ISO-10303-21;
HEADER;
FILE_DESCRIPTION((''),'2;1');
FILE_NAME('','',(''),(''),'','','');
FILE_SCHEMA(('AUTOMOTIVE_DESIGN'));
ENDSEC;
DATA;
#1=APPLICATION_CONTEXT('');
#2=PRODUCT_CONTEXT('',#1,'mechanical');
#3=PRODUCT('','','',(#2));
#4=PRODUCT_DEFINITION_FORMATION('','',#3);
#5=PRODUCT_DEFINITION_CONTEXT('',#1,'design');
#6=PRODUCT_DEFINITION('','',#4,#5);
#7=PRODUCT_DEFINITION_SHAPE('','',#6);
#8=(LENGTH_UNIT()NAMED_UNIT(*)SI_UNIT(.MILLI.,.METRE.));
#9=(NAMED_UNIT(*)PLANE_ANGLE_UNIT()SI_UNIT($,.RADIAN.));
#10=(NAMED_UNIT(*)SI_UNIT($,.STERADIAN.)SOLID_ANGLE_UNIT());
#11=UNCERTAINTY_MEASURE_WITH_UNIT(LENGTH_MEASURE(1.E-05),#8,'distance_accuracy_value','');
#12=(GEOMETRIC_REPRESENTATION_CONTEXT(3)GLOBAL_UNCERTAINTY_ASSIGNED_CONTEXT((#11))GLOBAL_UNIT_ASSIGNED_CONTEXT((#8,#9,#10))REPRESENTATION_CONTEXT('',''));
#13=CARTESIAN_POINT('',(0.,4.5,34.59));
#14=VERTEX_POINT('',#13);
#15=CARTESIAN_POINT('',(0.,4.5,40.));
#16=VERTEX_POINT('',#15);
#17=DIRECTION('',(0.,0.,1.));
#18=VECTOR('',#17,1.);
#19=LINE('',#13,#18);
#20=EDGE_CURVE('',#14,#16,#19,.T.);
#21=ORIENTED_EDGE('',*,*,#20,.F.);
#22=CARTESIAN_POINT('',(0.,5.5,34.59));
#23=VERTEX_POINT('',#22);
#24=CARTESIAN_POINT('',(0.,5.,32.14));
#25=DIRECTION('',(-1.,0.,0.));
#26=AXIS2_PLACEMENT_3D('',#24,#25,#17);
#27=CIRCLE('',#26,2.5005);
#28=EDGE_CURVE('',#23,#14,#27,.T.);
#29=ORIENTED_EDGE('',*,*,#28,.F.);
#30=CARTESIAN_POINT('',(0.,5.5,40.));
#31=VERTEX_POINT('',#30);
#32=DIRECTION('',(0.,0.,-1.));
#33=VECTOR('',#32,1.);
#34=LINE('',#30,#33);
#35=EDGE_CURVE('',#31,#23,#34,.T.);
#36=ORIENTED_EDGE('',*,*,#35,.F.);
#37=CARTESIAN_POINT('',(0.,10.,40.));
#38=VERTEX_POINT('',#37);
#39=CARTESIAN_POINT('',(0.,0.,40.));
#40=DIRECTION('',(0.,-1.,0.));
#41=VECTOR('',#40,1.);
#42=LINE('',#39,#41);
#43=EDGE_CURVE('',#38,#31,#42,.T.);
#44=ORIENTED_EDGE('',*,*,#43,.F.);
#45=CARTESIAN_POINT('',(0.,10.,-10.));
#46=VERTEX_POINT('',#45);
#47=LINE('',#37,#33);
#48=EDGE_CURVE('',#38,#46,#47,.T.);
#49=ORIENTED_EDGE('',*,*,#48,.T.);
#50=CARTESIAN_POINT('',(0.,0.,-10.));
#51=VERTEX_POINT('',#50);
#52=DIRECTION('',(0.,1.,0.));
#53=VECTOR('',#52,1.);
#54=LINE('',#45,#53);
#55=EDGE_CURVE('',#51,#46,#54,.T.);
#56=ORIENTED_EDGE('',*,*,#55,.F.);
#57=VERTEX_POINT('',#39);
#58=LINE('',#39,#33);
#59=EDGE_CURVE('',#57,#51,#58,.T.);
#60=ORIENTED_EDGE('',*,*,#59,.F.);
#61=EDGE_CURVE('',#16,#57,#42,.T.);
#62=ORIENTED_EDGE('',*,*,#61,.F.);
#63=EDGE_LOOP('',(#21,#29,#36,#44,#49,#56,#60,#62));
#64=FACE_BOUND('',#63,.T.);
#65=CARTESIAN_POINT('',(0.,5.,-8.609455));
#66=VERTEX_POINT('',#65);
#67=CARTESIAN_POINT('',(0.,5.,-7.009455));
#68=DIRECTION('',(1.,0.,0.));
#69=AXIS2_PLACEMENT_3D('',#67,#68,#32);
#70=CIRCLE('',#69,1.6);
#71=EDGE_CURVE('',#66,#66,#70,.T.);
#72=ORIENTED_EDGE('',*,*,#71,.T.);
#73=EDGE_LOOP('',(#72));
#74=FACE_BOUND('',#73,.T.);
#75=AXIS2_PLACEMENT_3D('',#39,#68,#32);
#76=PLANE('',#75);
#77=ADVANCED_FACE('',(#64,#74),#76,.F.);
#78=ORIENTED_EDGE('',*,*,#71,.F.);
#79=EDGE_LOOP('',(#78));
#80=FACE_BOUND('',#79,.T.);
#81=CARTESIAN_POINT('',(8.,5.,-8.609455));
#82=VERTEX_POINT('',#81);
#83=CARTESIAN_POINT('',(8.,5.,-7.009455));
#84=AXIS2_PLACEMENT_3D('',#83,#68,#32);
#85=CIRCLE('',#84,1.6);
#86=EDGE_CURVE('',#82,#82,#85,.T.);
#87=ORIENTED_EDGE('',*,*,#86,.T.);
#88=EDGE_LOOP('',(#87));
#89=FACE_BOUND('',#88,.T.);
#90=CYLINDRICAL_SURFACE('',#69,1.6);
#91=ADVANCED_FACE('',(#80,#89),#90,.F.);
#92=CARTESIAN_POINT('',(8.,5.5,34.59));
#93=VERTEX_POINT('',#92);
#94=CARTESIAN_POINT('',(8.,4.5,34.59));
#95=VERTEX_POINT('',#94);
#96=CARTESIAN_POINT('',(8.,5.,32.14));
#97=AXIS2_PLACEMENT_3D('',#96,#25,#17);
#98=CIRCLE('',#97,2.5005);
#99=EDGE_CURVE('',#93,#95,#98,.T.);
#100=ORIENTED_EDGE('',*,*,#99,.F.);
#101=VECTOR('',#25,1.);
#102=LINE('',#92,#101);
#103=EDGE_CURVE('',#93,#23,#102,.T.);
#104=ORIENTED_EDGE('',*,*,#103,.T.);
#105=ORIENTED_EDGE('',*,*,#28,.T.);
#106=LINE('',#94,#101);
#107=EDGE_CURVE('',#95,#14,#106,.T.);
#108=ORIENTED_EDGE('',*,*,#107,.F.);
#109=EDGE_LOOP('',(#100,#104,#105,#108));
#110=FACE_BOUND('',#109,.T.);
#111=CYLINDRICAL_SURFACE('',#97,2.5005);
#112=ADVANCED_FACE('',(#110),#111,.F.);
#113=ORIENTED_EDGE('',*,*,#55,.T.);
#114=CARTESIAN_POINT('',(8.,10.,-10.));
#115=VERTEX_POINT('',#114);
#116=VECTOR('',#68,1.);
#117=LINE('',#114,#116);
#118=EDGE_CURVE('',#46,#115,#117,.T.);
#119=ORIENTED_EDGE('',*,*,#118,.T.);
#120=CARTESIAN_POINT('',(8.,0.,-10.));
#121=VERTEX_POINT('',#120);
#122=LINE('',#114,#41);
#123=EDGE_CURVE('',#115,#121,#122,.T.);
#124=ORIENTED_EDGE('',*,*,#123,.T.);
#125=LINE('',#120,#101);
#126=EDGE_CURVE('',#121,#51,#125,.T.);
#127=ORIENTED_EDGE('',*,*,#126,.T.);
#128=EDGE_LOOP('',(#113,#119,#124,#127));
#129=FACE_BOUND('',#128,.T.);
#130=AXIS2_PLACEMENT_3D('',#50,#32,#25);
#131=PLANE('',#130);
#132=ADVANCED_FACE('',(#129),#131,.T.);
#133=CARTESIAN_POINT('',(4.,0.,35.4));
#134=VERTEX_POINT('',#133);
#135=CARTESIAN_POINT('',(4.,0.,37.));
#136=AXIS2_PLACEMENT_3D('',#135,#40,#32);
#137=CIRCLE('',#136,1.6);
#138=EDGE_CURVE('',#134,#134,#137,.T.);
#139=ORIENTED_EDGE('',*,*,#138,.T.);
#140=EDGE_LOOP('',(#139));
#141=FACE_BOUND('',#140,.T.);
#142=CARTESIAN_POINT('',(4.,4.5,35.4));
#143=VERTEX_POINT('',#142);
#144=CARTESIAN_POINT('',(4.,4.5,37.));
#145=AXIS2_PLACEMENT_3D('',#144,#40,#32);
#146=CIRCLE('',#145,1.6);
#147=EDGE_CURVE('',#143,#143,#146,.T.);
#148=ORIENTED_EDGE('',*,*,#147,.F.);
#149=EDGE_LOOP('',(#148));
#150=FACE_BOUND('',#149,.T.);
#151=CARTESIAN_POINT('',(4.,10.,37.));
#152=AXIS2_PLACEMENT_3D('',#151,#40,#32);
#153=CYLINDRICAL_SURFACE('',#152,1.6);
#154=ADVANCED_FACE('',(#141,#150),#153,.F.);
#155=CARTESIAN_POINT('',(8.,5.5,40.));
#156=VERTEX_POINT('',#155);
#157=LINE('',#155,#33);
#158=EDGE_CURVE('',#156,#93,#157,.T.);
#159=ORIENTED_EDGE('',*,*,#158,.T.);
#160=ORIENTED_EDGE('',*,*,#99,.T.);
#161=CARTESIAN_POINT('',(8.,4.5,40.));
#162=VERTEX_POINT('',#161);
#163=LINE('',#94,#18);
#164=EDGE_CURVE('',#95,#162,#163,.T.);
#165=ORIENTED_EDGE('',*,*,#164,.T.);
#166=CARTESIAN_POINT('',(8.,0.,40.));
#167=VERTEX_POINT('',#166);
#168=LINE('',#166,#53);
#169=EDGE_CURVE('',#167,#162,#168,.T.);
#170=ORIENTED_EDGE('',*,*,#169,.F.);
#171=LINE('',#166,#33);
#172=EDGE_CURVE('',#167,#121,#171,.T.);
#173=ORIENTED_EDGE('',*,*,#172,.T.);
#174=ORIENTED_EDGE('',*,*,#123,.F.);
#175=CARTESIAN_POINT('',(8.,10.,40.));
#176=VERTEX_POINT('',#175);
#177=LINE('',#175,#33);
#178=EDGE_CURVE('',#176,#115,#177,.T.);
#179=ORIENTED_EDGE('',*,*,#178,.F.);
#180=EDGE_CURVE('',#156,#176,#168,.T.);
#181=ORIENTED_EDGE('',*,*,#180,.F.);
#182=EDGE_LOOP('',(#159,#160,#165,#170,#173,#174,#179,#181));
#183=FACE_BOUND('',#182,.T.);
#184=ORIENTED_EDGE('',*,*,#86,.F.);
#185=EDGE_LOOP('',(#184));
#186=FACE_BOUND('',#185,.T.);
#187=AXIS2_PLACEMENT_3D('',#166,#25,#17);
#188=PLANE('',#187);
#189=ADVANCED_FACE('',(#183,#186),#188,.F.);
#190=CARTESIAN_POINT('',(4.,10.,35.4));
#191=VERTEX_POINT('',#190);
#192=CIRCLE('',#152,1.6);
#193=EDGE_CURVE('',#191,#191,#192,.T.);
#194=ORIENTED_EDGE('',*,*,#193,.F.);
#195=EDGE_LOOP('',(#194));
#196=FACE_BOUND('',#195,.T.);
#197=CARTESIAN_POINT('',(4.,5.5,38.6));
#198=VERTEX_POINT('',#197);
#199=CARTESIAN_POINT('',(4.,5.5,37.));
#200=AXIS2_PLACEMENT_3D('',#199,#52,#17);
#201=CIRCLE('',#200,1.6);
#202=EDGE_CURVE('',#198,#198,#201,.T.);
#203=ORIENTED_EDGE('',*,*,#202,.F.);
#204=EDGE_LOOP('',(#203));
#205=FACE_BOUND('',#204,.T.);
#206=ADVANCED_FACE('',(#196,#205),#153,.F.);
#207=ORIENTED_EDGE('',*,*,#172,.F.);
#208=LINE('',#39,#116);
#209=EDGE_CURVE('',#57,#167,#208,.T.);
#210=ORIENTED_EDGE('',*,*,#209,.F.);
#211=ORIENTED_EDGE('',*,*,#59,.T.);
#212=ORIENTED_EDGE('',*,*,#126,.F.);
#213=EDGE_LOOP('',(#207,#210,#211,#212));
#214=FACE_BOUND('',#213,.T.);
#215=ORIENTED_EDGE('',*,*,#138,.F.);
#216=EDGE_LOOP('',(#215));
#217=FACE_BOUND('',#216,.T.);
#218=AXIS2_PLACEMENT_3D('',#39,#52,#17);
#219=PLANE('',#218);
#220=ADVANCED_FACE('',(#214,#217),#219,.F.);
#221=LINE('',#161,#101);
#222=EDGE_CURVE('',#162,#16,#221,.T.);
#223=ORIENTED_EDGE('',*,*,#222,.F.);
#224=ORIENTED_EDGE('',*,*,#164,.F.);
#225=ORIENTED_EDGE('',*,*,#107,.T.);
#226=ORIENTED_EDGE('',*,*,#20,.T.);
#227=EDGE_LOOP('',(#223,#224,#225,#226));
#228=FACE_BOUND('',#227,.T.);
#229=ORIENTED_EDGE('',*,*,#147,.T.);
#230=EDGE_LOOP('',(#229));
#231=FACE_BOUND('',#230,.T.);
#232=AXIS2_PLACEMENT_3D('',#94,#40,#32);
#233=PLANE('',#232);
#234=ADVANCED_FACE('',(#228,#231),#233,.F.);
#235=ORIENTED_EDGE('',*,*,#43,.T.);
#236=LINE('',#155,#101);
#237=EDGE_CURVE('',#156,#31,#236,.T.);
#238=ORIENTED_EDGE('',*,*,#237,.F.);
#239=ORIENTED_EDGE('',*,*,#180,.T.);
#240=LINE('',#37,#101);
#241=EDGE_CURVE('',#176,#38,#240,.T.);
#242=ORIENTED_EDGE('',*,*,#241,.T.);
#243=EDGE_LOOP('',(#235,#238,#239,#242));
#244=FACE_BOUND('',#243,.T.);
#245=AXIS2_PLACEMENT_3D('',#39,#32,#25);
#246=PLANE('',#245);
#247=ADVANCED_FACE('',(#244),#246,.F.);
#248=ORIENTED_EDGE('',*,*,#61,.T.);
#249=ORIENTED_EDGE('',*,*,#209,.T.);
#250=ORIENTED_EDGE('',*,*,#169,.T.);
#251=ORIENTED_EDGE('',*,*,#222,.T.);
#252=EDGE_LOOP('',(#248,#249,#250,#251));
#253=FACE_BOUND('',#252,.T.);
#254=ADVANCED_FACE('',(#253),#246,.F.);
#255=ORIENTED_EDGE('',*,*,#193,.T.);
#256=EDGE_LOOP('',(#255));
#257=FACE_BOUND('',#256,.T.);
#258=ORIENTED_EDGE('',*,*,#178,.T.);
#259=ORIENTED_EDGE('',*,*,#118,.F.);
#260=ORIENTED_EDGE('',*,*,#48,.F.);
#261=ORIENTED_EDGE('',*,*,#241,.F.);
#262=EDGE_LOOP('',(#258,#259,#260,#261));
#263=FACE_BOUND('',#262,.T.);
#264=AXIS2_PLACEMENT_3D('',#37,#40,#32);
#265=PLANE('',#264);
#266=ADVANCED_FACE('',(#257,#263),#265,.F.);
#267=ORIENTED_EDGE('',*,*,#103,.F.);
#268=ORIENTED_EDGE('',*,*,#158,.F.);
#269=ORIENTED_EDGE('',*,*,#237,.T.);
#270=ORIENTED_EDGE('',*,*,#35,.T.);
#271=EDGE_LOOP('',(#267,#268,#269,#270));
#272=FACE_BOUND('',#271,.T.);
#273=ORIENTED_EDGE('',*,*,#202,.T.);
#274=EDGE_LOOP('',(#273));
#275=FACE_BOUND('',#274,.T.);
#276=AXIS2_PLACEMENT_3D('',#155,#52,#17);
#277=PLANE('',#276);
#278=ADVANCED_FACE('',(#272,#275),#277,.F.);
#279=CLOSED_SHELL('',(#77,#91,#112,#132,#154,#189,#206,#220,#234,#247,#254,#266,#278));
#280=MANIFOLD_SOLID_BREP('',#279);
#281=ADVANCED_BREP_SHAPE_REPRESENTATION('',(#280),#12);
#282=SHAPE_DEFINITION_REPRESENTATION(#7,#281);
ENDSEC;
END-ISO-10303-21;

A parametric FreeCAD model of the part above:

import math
import FreeCAD as App
import Part
import Sketcher
from FreeCAD import Vector


def add_polygon(sketch, points):
    """Adds a closed chain of lines whose ends are joined by coincident constraints."""
    first, n = sketch.GeometryCount, len(points)
    for a, b in zip(points, points[1:] + points[:1]):
        sketch.addGeometry(Part.LineSegment(App.Vector(*a, 0), App.Vector(*b, 0)), False)
    for i in range(n):
        sketch.addConstraint(Sketcher.Constraint("Coincident", first + i, 2, first + (i + 1) % n, 1))

doc = App.newDocument("Part")
params = doc.addObject("Spreadsheet::Sheet", "Params")
for row, (alias, value) in enumerate([
    ("sketch1_width", "8 mm"),
    ("sketch1_height", "10 mm"),
    ("pad1_length", "40 mm"),
    ("sketch2_width", "8 mm"),
    ("sketch2_height", "10 mm"),
    ("pad2_length", "10 mm"),
    ("sketch3_diameter", "3.2 mm"),
    ("sketch4_width", "1 mm"),
    ("sketch4_height", "5.41 mm"),
    ("sketch5_diameter", "3.2 mm"),
], start=1):
    params.set(f"A{row}", alias)
    params.set(f"B{row}", "=" + value)
    params.setAlias(f"B{row}", alias)

body = doc.addObject("PartDesign::Body", "Body")

# Sketch on XY plane
sketch1 = doc.addObject("Sketcher::SketchObject", "Sketch")
body.addObject(sketch1)
sketch1.AttachmentSupport = (doc.XY_Plane, [""])
sketch1.MapMode = "FlatFace"
add_polygon(sketch1, [(0, 10), (0, 0), (8, 0), (8, 10)])  # lines 0-3
sketch1.addConstraint(Sketcher.Constraint("Vertical", 0))
sketch1.addConstraint(Sketcher.Constraint("Horizontal", 1))
sketch1.addConstraint(Sketcher.Constraint("Vertical", 2))
sketch1.addConstraint(Sketcher.Constraint("Horizontal", 3))
sketch1.addConstraint(Sketcher.Constraint("Coincident", 0, 2, -1, 1))
sketch1.addConstraint(Sketcher.Constraint("DistanceX", 1, 1, 1, 2, 8.0))
sketch1.addConstraint(Sketcher.Constraint("DistanceY", 0, 2, 0, 1, 10.0))
sketch1.setExpression("Constraints[9]", "Params.sketch1_width")
sketch1.setExpression("Constraints[10]", "Params.sketch1_height")
pad1 = doc.addObject("PartDesign::Pad", "Pad")
body.addObject(pad1)
pad1.Profile = sketch1
pad1.setExpression("Length", "Params.pad1_length")

# Sketch on XY plane
sketch2 = doc.addObject("Sketcher::SketchObject", "Sketch001")
body.addObject(sketch2)
sketch2.AttachmentSupport = (doc.XY_Plane, [""])
sketch2.MapMode = "FlatFace"
add_polygon(sketch2, [(8, 10), (8, 0), (0, 0), (0, 10)])  # lines 0-3
sketch2.addConstraint(Sketcher.Constraint("Vertical", 0))
sketch2.addConstraint(Sketcher.Constraint("Horizontal", 1))
sketch2.addConstraint(Sketcher.Constraint("Vertical", 2))
sketch2.addConstraint(Sketcher.Constraint("Horizontal", 3))
sketch2.addConstraint(Sketcher.Constraint("Coincident", 1, 2, -1, 1))
sketch2.addConstraint(Sketcher.Constraint("DistanceX", 1, 2, 1, 1, 8.0))
sketch2.addConstraint(Sketcher.Constraint("DistanceY", 0, 2, 0, 1, 10.0))
sketch2.setExpression("Constraints[9]", "Params.sketch2_width")
sketch2.setExpression("Constraints[10]", "Params.sketch2_height")
pad2 = doc.addObject("PartDesign::Pad", "Pad001")
body.addObject(pad2)
pad2.Profile = sketch2
pad2.setExpression("Length", "Params.pad2_length")
pad2.Reversed = True

# Sketch on YZ plane
sketch3 = doc.addObject("Sketcher::SketchObject", "Sketch002")
body.addObject(sketch3)
sketch3.AttachmentSupport = (doc.YZ_Plane, [""])
sketch3.MapMode = "FlatFace"
sketch3.AttachmentOffset = App.Placement(Vector(0, 0, 8), App.Rotation())
sketch3.addGeometry(Part.Circle(Vector(5, -7.009455, 0), Vector(0, 0, 1), 1.6), False)
sketch3.addConstraint(Sketcher.Constraint("Diameter", 0, 3.2))
sketch3.addConstraint(Sketcher.Constraint("DistanceX", -1, 1, 0, 3, 5.0))
sketch3.addConstraint(Sketcher.Constraint("DistanceY", 0, 3, -1, 1, 7.009455))
sketch3.setExpression("Constraints[0]", "Params.sketch3_diameter")
pocket1 = doc.addObject("PartDesign::Pocket", "Pocket")
body.addObject(pocket1)
pocket1.Profile = sketch3
pocket1.Type = "ThroughAll"

# Sketch on YZ plane
sketch4 = doc.addObject("Sketcher::SketchObject", "Sketch003")
body.addObject(sketch4)
sketch4.AttachmentSupport = (doc.YZ_Plane, [""])
sketch4.MapMode = "FlatFace"
sketch4.addGeometry(Part.LineSegment(Vector(5.5, 40, 0), Vector(5.5, 34.59, 0)), False)
sketch4.addGeometry(Part.ArcOfCircle(Part.Circle(Vector(5, 32.14, 0), Vector(0, 0, 1), 2.5005), math.radians(101.534621), math.radians(438.465379)), False)
sketch4.addGeometry(Part.LineSegment(Vector(4.5, 34.59, 0), Vector(4.5, 40, 0)), False)
sketch4.addGeometry(Part.LineSegment(Vector(4.5, 40, 0), Vector(5.5, 40, 0)), False)
sketch4.addConstraint(Sketcher.Constraint("Coincident", 0, 2, 1, 2))
sketch4.addConstraint(Sketcher.Constraint("Coincident", 1, 1, 2, 1))
sketch4.addConstraint(Sketcher.Constraint("Coincident", 2, 2, 3, 1))
sketch4.addConstraint(Sketcher.Constraint("Coincident", 3, 2, 0, 1))
sketch4.addConstraint(Sketcher.Constraint("Vertical", 0))
sketch4.addConstraint(Sketcher.Constraint("Vertical", 2))
sketch4.addConstraint(Sketcher.Constraint("Horizontal", 3))
sketch4.addConstraint(Sketcher.Constraint("Horizontal", 0, 2, 1, 1))
sketch4.addConstraint(Sketcher.Constraint("DistanceX", 3, 1, 3, 2, 1.0))
sketch4.addConstraint(Sketcher.Constraint("DistanceX", -1, 1, 1, 3, 5.0))
sketch4.addConstraint(Sketcher.Constraint("DistanceY", -1, 1, 2, 2, 40.0))
sketch4.addConstraint(Sketcher.Constraint("DistanceY", 0, 2, 0, 1, 5.41))
sketch4.addConstraint(Sketcher.Constraint("Radius", 1, 2.5005))
sketch4.setExpression("Constraints[8]", "Params.sketch4_width")
sketch4.setExpression("Constraints[11]", "Params.sketch4_height")
pocket2 = doc.addObject("PartDesign::Pocket", "Pocket001")
body.addObject(pocket2)
pocket2.Profile = sketch4
pocket2.Type = "ThroughAll"
pocket2.Reversed = True

# Sketch on XZ plane
sketch5 = doc.addObject("Sketcher::SketchObject", "Sketch004")
body.addObject(sketch5)
sketch5.AttachmentSupport = (doc.XZ_Plane, [""])
sketch5.MapMode = "FlatFace"
sketch5.addGeometry(Part.Circle(Vector(4, 37, 0), Vector(0, 0, 1), 1.6), False)
sketch5.addConstraint(Sketcher.Constraint("Diameter", 0, 3.2))
sketch5.addConstraint(Sketcher.Constraint("DistanceX", -1, 1, 0, 3, 4.0))
sketch5.addConstraint(Sketcher.Constraint("DistanceY", -1, 1, 0, 3, 37.0))
sketch5.setExpression("Constraints[0]", "Params.sketch5_diameter")
pocket3 = doc.addObject("PartDesign::Pocket", "Pocket002")
body.addObject(pocket3)
pocket3.Profile = sketch5
pocket3.Type = "ThroughAll"

doc.recompute()
